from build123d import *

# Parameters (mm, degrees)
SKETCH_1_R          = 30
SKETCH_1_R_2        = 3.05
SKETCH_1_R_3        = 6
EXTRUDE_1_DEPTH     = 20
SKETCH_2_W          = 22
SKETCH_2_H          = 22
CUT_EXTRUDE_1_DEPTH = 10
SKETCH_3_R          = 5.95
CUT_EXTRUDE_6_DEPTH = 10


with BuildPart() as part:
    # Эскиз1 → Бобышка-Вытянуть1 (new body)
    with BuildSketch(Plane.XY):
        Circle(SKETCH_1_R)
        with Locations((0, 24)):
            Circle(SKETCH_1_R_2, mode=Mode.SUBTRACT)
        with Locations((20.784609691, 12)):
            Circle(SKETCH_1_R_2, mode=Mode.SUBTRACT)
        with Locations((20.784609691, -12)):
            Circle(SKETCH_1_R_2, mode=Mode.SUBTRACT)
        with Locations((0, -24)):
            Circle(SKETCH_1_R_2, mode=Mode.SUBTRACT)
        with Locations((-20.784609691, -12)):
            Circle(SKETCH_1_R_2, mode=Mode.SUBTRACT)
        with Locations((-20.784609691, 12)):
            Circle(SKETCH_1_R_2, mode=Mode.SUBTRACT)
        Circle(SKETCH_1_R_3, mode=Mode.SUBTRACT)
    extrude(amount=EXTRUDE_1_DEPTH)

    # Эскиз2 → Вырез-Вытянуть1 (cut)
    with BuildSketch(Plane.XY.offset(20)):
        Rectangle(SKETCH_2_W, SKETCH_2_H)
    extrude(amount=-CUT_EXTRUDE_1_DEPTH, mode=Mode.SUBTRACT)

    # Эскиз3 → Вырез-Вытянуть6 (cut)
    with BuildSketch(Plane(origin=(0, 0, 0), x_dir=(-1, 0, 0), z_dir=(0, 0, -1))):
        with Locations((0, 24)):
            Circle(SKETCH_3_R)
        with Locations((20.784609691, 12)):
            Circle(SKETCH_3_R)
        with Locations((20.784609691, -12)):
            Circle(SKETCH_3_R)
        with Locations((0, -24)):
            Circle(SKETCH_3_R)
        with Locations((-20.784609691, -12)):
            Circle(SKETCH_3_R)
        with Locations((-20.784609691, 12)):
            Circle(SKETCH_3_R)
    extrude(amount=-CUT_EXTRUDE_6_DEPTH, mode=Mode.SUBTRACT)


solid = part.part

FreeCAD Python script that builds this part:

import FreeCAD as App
import Part
import Sketcher
from FreeCAD import Vector
Q = App.Units.Quantity


def add_polygon(sketch, points):
    """Adds a closed chain of lines whose ends are joined by coincident constraints."""
    first, n = sketch.GeometryCount, len(points)
    for a, b in zip(points, points[1:] + points[:1]):
        sketch.addGeometry(Part.LineSegment(App.Vector(*a, 0), App.Vector(*b, 0)), False)
    for i in range(n):
        sketch.addConstraint(Sketcher.Constraint("Coincident", first + i, 2, first + (i + 1) % n, 1))

doc = App.newDocument("Part")
body = doc.addObject("PartDesign::Body", "Body")

# Sketch on XY plane
sketch1 = doc.addObject("Sketcher::SketchObject", "Sketch")
body.addObject(sketch1)
sketch1.AttachmentSupport = (doc.XY_Plane, [""])
sketch1.MapMode = "FlatFace"
sketch1.addGeometry(Part.Circle(Vector(0, 0, 0), Vector(0, 0, 1), 30), False)
sketch1.addGeometry(Part.Circle(Vector(-20.8, -12, 0), Vector(0, 0, 1), 3), False)
sketch1.addGeometry(Part.Circle(Vector(0, -24, 0), Vector(0, 0, 1), 3), False)
sketch1.addGeometry(Part.Circle(Vector(0, 0, 0), Vector(0, 0, 1), 6), False)
sketch1.addGeometry(Part.Circle(Vector(20.8, -12, 0), Vector(0, 0, 1), 3), False)
sketch1.addGeometry(Part.Circle(Vector(-20.8, 12, 0), Vector(0, 0, 1), 3), False)
sketch1.addGeometry(Part.Circle(Vector(20.8, 12, 0), Vector(0, 0, 1), 3), False)
sketch1.addGeometry(Part.Circle(Vector(0, 24, 0), Vector(0, 0, 1), 3), False)
sketch1.addConstraint(Sketcher.Constraint("Coincident", 0, 3, -1, 1))
sketch1.addConstraint(Sketcher.Constraint("Coincident", 3, 3, -1, 1))
sketch1.addConstraint(Sketcher.Constraint("Equal", 1, 2))
sketch1.addConstraint(Sketcher.Constraint("Equal", 2, 4))
sketch1.addConstraint(Sketcher.Constraint("Equal", 4, 5))
sketch1.addConstraint(Sketcher.Constraint("Equal", 5, 6))
sketch1.addConstraint(Sketcher.Constraint("Equal", 6, 7))
sketch1.addConstraint(Sketcher.Constraint("Symmetric", 4, 3, 5, 3, -1, 1))
sketch1.addConstraint(Sketcher.Constraint("Symmetric", 1, 3, 6, 3, -1, 1))
sketch1.addConstraint(Sketcher.Constraint("Symmetric", 2, 3, 7, 3, -1, 1))
sketch1.addConstraint(Sketcher.Constraint("Symmetric", 1, 3, 4, 3, -2))
sketch1.addConstraint(Sketcher.Constraint("PointOnObject", 2, 3, -2))
sketch1.addConstraint(Sketcher.Constraint("Diameter", 0, Q("60 mm")))
sketch1.addConstraint(Sketcher.Constraint("Diameter", 3, Q("12 mm")))
sketch1.addConstraint(Sketcher.Constraint("Diameter", 1, Q("6.1 mm")))
sketch1.addConstraint(Sketcher.Constraint("DistanceY", 1, 3, -1, 1, Q("12 mm")))
sketch1.addConstraint(Sketcher.Constraint("DistanceY", 2, 3, -1, 1, Q("24 mm")))
sketch1.addConstraint(Sketcher.Constraint("DistanceX", 1, 3, -1, 1, Q("20.78461 mm")))
pad1 = doc.addObject("PartDesign::Pad", "Pad")
body.addObject(pad1)
pad1.Profile = sketch1
pad1.Length = 20

# Sketch on XY plane
sketch2 = doc.addObject("Sketcher::SketchObject", "Sketch001")
body.addObject(sketch2)
sketch2.AttachmentSupport = (doc.XY_Plane, [""])
sketch2.MapMode = "FlatFace"
sketch2.AttachmentOffset = App.Placement(Vector(0, 0, 20), App.Rotation())
add_polygon(sketch2, [(-11, 11), (-11, -11), (11, -11), (11, 11)])  # lines 0-3
sketch2.addConstraint(Sketcher.Constraint("Vertical", 0))
sketch2.addConstraint(Sketcher.Constraint("Horizontal", 1))
sketch2.addConstraint(Sketcher.Constraint("Vertical", 2))
sketch2.addConstraint(Sketcher.Constraint("Horizontal", 3))
sketch2.addConstraint(Sketcher.Constraint("Symmetric", 0, 2, 2, 2, -1, 1))
sketch2.addConstraint(Sketcher.Constraint("Equal", 3, 0))
sketch2.addConstraint(Sketcher.Constraint("DistanceX", 1, 1, 1, 2, Q("22 mm")))
pocket1 = doc.addObject("PartDesign::Pocket", "Pocket")
body.addObject(pocket1)
pocket1.Profile = sketch2
pocket1.Length = 10

# Sketch on XY plane
sketch3 = doc.addObject("Sketcher::SketchObject", "Sketch002")
body.addObject(sketch3)
sketch3.AttachmentSupport = (doc.XY_Plane, [""])
sketch3.MapMode = "FlatFace"
sketch3.addGeometry(Part.Circle(Vector(0, 24, 0), Vector(0, 0, 1), 6), False)
sketch3.addGeometry(Part.Circle(Vector(-21, 12, 0), Vector(0, 0, 1), 6), False)
sketch3.addGeometry(Part.Circle(Vector(-21, -12, 0), Vector(0, 0, 1), 6), False)
sketch3.addGeometry(Part.Circle(Vector(0, -24, 0), Vector(0, 0, 1), 6), False)
sketch3.addGeometry(Part.Circle(Vector(21, -12, 0), Vector(0, 0, 1), 6), False)
sketch3.addGeometry(Part.Circle(Vector(21, 12, 0), Vector(0, 0, 1), 6), False)
sketch3.addConstraint(Sketcher.Constraint("Equal", 0, 1))
sketch3.addConstraint(Sketcher.Constraint("Equal", 1, 2))
sketch3.addConstraint(Sketcher.Constraint("Equal", 2, 3))
sketch3.addConstraint(Sketcher.Constraint("Equal", 3, 4))
sketch3.addConstraint(Sketcher.Constraint("Equal", 4, 5))
sketch3.addConstraint(Sketcher.Constraint("Symmetric", 0, 3, 3, 3, -1, 1))
sketch3.addConstraint(Sketcher.Constraint("Symmetric", 1, 3, 4, 3, -1, 1))
sketch3.addConstraint(Sketcher.Constraint("Symmetric", 2, 3, 5, 3, -1, 1))
sketch3.addConstraint(Sketcher.Constraint("Symmetric", 2, 3, 4, 3, -2))
sketch3.addConstraint(Sketcher.Constraint("PointOnObject", 0, 3, -2))
sketch3.addConstraint(Sketcher.Constraint("Diameter", 0, Q("11.9 mm")))
sketch3.addConstraint(Sketcher.Constraint("DistanceY", -1, 1, 0, 3, Q("24 mm")))
sketch3.addConstraint(Sketcher.Constraint("DistanceY", -1, 1, 1, 3, Q("12 mm")))
sketch3.addConstraint(Sketcher.Constraint("DistanceX", 1, 3, -1, 1, Q("20.78461 mm")))
pocket2 = doc.addObject("PartDesign::Pocket", "Pocket001")
body.addObject(pocket2)
pocket2.Profile = sketch3
pocket2.Length = 10
pocket2.Reversed = True

doc.recompute()
